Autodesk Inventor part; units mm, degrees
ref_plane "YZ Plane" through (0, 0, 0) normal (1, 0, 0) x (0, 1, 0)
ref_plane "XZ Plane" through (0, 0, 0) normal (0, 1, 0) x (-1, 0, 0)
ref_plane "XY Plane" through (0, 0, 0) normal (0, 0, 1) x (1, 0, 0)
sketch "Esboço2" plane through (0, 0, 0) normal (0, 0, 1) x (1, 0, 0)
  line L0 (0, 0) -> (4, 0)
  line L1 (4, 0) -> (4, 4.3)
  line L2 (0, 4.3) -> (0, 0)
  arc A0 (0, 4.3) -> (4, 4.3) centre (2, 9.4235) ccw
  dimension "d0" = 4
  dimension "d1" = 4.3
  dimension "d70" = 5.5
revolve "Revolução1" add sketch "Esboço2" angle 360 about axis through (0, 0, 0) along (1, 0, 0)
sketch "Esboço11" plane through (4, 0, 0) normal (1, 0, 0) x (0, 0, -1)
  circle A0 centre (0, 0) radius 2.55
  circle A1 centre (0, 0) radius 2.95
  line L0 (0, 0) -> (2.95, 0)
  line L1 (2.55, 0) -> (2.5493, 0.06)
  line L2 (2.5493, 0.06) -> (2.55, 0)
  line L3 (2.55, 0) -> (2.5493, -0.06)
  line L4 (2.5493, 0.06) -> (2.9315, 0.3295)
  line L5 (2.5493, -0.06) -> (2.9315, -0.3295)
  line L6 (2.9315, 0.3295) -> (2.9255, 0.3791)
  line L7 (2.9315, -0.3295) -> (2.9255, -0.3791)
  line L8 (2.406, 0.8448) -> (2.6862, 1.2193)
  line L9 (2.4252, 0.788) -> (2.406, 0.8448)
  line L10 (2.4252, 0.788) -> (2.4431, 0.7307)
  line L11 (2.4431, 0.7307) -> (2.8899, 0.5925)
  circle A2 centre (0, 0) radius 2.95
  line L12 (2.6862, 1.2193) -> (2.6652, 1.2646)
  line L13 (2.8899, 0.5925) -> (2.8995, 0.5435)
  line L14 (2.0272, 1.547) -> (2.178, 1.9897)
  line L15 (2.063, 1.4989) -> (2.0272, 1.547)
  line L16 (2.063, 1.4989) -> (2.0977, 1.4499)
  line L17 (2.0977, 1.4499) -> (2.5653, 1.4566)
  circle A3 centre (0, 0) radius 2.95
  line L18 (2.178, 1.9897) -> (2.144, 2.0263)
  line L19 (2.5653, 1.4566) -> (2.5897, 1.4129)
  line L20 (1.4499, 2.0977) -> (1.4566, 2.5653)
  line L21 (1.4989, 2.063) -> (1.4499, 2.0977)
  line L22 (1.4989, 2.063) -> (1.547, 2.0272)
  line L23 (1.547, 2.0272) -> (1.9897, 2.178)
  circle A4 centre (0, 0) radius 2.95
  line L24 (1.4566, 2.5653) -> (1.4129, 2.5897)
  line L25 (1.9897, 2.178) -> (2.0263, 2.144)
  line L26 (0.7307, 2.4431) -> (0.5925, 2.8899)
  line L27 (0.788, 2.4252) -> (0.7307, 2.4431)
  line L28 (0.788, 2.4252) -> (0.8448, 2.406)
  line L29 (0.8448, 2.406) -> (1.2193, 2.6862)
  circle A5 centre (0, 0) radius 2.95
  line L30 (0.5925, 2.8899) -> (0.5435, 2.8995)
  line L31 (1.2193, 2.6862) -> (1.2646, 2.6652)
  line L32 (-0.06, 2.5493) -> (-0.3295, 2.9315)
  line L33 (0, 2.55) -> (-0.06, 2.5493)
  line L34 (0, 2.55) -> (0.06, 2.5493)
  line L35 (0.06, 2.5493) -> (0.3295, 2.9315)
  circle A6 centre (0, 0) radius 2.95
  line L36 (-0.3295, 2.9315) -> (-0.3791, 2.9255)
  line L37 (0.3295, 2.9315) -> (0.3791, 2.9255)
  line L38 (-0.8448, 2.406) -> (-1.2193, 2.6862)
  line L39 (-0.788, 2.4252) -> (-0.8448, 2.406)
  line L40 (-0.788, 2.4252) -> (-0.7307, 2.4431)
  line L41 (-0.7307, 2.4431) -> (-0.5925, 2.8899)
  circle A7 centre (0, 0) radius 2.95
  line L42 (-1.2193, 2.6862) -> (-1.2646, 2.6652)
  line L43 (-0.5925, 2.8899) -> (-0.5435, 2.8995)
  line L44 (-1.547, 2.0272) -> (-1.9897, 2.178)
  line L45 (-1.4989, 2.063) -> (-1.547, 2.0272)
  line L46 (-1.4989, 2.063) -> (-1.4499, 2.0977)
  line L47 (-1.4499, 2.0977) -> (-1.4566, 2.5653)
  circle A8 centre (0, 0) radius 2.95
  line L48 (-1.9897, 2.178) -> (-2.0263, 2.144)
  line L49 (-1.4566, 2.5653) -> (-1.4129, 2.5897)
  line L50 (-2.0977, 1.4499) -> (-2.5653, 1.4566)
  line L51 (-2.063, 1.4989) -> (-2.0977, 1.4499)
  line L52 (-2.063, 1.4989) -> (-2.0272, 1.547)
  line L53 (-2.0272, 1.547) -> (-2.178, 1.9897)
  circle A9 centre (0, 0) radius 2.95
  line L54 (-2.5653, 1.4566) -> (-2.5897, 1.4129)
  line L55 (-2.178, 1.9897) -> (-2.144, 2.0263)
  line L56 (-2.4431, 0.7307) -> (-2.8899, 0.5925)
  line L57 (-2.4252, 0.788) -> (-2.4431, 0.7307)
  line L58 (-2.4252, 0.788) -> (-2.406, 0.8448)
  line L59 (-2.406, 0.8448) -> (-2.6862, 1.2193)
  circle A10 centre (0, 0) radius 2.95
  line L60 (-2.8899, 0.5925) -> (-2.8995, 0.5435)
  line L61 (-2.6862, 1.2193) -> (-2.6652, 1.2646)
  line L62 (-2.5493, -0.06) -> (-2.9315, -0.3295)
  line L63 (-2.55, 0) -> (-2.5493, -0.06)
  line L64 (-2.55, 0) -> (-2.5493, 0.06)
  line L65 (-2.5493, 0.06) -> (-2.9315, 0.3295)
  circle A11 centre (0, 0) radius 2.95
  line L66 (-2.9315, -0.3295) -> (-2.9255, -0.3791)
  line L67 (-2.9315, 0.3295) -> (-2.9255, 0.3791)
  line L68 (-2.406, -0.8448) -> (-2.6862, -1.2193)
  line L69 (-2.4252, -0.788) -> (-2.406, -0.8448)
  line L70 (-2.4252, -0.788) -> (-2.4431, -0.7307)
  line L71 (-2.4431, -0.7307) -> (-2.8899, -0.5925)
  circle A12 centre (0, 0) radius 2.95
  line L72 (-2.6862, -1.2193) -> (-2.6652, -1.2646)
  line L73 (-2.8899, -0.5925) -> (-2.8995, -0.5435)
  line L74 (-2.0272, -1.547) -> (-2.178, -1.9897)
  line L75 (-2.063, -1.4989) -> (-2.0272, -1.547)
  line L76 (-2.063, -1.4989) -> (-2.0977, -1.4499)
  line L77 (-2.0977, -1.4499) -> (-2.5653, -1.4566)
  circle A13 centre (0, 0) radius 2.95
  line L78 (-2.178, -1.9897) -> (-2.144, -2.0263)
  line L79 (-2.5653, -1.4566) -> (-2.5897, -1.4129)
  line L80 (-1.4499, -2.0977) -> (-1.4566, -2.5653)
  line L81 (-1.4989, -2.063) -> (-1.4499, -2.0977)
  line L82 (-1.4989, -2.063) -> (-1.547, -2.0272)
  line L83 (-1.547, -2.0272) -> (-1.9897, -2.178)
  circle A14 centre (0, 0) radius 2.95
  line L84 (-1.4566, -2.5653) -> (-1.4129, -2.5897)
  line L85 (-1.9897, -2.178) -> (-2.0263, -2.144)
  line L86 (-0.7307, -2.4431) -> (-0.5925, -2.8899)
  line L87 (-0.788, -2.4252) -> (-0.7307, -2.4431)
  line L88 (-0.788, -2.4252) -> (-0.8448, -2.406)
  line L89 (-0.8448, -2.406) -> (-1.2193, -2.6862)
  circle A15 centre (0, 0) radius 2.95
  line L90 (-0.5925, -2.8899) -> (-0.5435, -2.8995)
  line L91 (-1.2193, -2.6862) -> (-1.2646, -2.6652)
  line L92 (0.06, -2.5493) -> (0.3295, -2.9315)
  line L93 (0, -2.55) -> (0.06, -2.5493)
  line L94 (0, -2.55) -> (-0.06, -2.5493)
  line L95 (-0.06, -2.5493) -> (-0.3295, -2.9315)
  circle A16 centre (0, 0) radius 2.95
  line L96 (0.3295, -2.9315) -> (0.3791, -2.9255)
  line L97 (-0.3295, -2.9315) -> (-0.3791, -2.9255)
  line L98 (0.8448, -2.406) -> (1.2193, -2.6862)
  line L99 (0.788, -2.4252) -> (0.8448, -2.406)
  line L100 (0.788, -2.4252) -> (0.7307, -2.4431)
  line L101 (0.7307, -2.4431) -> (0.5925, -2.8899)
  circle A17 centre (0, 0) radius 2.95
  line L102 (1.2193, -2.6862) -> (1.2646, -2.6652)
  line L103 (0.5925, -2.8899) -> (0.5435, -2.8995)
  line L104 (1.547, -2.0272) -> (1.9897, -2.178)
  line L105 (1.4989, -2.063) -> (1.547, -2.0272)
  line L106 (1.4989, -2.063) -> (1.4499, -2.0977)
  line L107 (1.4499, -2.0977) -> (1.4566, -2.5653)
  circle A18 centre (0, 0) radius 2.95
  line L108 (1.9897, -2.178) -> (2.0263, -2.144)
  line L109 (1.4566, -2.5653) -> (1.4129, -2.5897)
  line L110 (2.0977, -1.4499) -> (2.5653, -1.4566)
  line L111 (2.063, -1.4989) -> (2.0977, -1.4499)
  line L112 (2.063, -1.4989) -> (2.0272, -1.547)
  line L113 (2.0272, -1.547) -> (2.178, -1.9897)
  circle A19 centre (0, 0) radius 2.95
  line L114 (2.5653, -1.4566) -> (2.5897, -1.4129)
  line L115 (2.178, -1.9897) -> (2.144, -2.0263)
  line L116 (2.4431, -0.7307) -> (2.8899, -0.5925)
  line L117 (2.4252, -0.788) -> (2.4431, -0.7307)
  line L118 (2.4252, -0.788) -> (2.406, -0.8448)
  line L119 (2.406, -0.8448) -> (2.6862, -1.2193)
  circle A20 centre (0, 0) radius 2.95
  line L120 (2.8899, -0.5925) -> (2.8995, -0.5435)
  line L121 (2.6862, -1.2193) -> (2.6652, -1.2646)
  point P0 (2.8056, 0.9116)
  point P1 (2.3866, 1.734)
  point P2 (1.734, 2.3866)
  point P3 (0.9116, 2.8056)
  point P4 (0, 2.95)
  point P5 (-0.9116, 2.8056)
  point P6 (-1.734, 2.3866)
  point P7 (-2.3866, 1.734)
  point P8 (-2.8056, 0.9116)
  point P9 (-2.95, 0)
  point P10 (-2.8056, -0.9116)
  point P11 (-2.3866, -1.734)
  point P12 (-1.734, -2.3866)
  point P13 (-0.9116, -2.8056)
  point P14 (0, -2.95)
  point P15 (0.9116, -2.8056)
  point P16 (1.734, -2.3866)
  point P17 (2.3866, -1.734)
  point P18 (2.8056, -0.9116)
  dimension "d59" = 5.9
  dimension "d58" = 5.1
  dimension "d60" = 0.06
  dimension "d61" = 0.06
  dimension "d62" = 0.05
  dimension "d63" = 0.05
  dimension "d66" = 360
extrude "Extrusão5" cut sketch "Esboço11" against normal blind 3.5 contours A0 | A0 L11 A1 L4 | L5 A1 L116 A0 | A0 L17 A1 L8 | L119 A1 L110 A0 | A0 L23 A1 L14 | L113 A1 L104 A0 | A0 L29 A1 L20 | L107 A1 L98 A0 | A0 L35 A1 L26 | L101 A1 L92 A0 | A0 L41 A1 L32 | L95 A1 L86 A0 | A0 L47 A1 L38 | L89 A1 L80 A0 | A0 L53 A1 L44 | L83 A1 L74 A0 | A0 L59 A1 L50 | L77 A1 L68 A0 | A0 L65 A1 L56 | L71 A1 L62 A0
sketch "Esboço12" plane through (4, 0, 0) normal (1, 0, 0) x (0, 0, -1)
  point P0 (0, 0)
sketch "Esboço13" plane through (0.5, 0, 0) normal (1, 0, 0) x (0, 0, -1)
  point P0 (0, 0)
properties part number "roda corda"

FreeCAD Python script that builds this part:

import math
import FreeCAD as App
import Part
import Sketcher
Q = App.Units.Quantity

doc = App.newDocument("Part")
params = doc.addObject("Spreadsheet::Sheet", "Params")
for row, (alias, value) in enumerate([
    ("sketch1_radius", "5.5 mm"),
    ("sketch1_width", "4 mm"),
    ("sketch1_height", "4.3 mm"),
    ("revolution_angle", "360 deg"),
    ("sketch2_radius", "2.55 mm"),
    ("sketch2_radius2", "2.95 mm"),
    ("pocket1_length", "3.5 mm"),
], start=1):
    params.set(f"A{row}", alias)
    params.set(f"B{row}", "=" + value)
    params.setAlias(f"B{row}", alias)

body = doc.addObject("PartDesign::Body", "Body")

# Sketch on XY plane
sketch1 = doc.addObject("Sketcher::SketchObject", "Sketch")
body.addObject(sketch1)
sketch1.AttachmentSupport = (doc.XY_Plane, [""])
sketch1.MapMode = "FlatFace"
sketch1.addGeometry([
    Part.LineSegment(App.Vector(0, 4.3, 0), App.Vector(0, 0, 0)),
    Part.LineSegment(App.Vector(0, 0, 0), App.Vector(4, 0, 0)),
    Part.LineSegment(App.Vector(4, 0, 0), App.Vector(4, 4.3, 0)),
    Part.ArcOfCircle(Part.Circle(App.Vector(2, 9.4235, 0), App.Vector(0, 0, 1), 5.500023), math.radians(-111.323593), math.radians(-68.676407)),
], False)
sketch1.addConstraint([
    Sketcher.Constraint("Coincident", 0, 2, 1, 1),
    Sketcher.Constraint("Coincident", 1, 2, 2, 1),
    Sketcher.Constraint("Coincident", 2, 2, 3, 2),
    Sketcher.Constraint("Coincident", 3, 1, 0, 1),
    Sketcher.Constraint("Vertical", 0),
    Sketcher.Constraint("Horizontal", 1),
    Sketcher.Constraint("Vertical", 2),
    Sketcher.Constraint("Coincident", 0, 2, -1, 1),
    Sketcher.Constraint("Horizontal", 2, 2, 3, 1),
    Sketcher.Constraint("Radius", 3, 5.5),
    Sketcher.Constraint("DistanceX", 1, 1, 1, 2, 4.0),
    Sketcher.Constraint("DistanceY", 0, 2, 0, 1, 4.3),
])
sketch1.setExpression("Constraints[9]", "Params.sketch1_radius")
sketch1.setExpression("Constraints[10]", "Params.sketch1_width")
sketch1.setExpression("Constraints[11]", "Params.sketch1_height")
revolution = doc.addObject("PartDesign::Revolution", "Revolution")
body.addObject(revolution)
revolution.Profile = sketch1
revolution.ReferenceAxis = (sketch1, ["H_Axis"])
revolution.setExpression("Angle", "Params.revolution_angle")

# Sketch on YZ plane
sketch2 = doc.addObject("Sketcher::SketchObject", "Sketch001")
body.addObject(sketch2)
sketch2.AttachmentSupport = (doc.YZ_Plane, [""])
sketch2.MapMode = "FlatFace"
sketch2.AttachmentOffset = App.Placement(App.Vector(0, 0, 4), App.Rotation())
sketch2.addGeometry([
    Part.ArcOfCircle(Part.Circle(App.Vector(0, 0, 0), App.Vector(0, 0, 1), 2.55), math.radians(-91.348257), math.radians(-88.651743)),  # 0
    Part.LineSegment(App.Vector(0.06, -2.5493, 0), App.Vector(0.3295, -2.9315, 0)),  # 1
    Part.ArcOfCircle(Part.Circle(App.Vector(0, 0, 0), App.Vector(0, 0, 1), 2.95), math.radians(-83.586883), math.radians(-78.413532)),  # 2
    Part.LineSegment(App.Vector(0.5925, -2.8899, 0), App.Vector(0.7307, -2.4431, 0)),  # 3
    Part.ArcOfCircle(Part.Circle(App.Vector(0, 0, 0), App.Vector(0, 0, 1), 2.55), math.radians(-73.348748), math.radians(-70.652694)),  # 4
    Part.LineSegment(App.Vector(0.8448, -2.406, 0), App.Vector(1.2193, -2.6862, 0)),  # 5
    Part.ArcOfCircle(Part.Circle(App.Vector(0, 0, 0), App.Vector(0, 0, 1), 2.95), math.radians(-65.586104), math.radians(-60.411707)),  # 6
    Part.LineSegment(App.Vector(1.4566, -2.5653, 0), App.Vector(1.4499, -2.0977, 0)),  # 7
    Part.ArcOfCircle(Part.Circle(App.Vector(0, 0, 0), App.Vector(0, 0, 1), 2.55), math.radians(-55.348331), math.radians(-52.651967)),  # 8
    Part.LineSegment(App.Vector(1.547, -2.0272, 0), App.Vector(1.9897, -2.178, 0)),  # 9
    Part.ArcOfCircle(Part.Circle(App.Vector(0, 0, 0), App.Vector(0, 0, 1), 2.95), math.radians(-47.58691), math.radians(-42.41309)),  # 10
    Part.LineSegment(App.Vector(2.178, -1.9897, 0), App.Vector(2.0272, -1.547, 0)),  # 11
    Part.ArcOfCircle(Part.Circle(App.Vector(0, 0, 0), App.Vector(0, 0, 1), 2.55), math.radians(-37.348033), math.radians(-34.651669)),  # 12
    Part.LineSegment(App.Vector(2.0977, -1.4499, 0), App.Vector(2.5653, -1.4566, 0)),  # 13
    Part.ArcOfCircle(Part.Circle(App.Vector(0, 0, 0), App.Vector(0, 0, 1), 2.95), math.radians(-29.588293), math.radians(-24.413896)),  # 14
    Part.LineSegment(App.Vector(2.6862, -1.2193, 0), App.Vector(2.406, -0.8448, 0)),  # 15
    Part.ArcOfCircle(Part.Circle(App.Vector(0, 0, 0), App.Vector(0, 0, 1), 2.55), math.radians(-19.347306), math.radians(-16.651252)),  # 16
    Part.LineSegment(App.Vector(2.4431, -0.7307, 0), App.Vector(2.8899, -0.5925, 0)),  # 17
    Part.ArcOfCircle(Part.Circle(App.Vector(0, 0, 0), App.Vector(0, 0, 1), 2.95), math.radians(-11.586468), math.radians(-6.413117)),  # 18
    Part.LineSegment(App.Vector(2.9315, -0.3295, 0), App.Vector(2.5493, -0.06, 0)),  # 19
    Part.ArcOfCircle(Part.Circle(App.Vector(0, 0, 0), App.Vector(0, 0, 1), 2.55), math.radians(-1.348257), math.radians(1.348257)),  # 20
    Part.LineSegment(App.Vector(2.5493, 0.06, 0), App.Vector(2.9315, 0.3295, 0)),  # 21
    Part.ArcOfCircle(Part.Circle(App.Vector(0, 0, 0), App.Vector(0, 0, 1), 2.95), math.radians(6.413117), math.radians(11.586468)),  # 22
    Part.LineSegment(App.Vector(2.8899, 0.5925, 0), App.Vector(2.4431, 0.7307, 0)),  # 23
    Part.ArcOfCircle(Part.Circle(App.Vector(0, 0, 0), App.Vector(0, 0, 1), 2.55), math.radians(16.651252), math.radians(19.347306)),  # 24
    Part.LineSegment(App.Vector(2.406, 0.8448, 0), App.Vector(2.6862, 1.2193, 0)),  # 25
    Part.ArcOfCircle(Part.Circle(App.Vector(0, 0, 0), App.Vector(0, 0, 1), 2.95), math.radians(24.413896), math.radians(29.588293)),  # 26
    Part.LineSegment(App.Vector(2.5653, 1.4566, 0), App.Vector(2.0977, 1.4499, 0)),  # 27
    Part.ArcOfCircle(Part.Circle(App.Vector(0, 0, 0), App.Vector(0, 0, 1), 2.55), math.radians(34.651669), math.radians(37.348033)),  # 28
    Part.LineSegment(App.Vector(2.0272, 1.547, 0), App.Vector(2.178, 1.9897, 0)),  # 29
    Part.ArcOfCircle(Part.Circle(App.Vector(0, 0, 0), App.Vector(0, 0, 1), 2.95), math.radians(42.41309), math.radians(47.58691)),  # 30
    Part.LineSegment(App.Vector(1.9897, 2.178, 0), App.Vector(1.547, 2.0272, 0)),  # 31
    Part.ArcOfCircle(Part.Circle(App.Vector(0, 0, 0), App.Vector(0, 0, 1), 2.55), math.radians(52.651967), math.radians(55.348331)),  # 32
    Part.LineSegment(App.Vector(1.4499, 2.0977, 0), App.Vector(1.4566, 2.5653, 0)),  # 33
    Part.ArcOfCircle(Part.Circle(App.Vector(0, 0, 0), App.Vector(0, 0, 1), 2.95), math.radians(60.411707), math.radians(65.586104)),  # 34
    Part.LineSegment(App.Vector(1.2193, 2.6862, 0), App.Vector(0.8448, 2.406, 0)),  # 35
    Part.ArcOfCircle(Part.Circle(App.Vector(0, 0, 0), App.Vector(0, 0, 1), 2.55), math.radians(70.652694), math.radians(73.348748)),  # 36
    Part.LineSegment(App.Vector(0.7307, 2.4431, 0), App.Vector(0.5925, 2.8899, 0)),  # 37
    Part.ArcOfCircle(Part.Circle(App.Vector(0, 0, 0), App.Vector(0, 0, 1), 2.95), math.radians(78.413532), math.radians(83.586883)),  # 38
    Part.LineSegment(App.Vector(0.3295, 2.9315, 0), App.Vector(0.06, 2.5493, 0)),  # 39
    Part.ArcOfCircle(Part.Circle(App.Vector(0, 0, 0), App.Vector(0, 0, 1), 2.55), math.radians(88.651743), math.radians(91.348257)),  # 40
    Part.LineSegment(App.Vector(-0.06, 2.5493, 0), App.Vector(-0.3295, 2.9315, 0)),  # 41
    Part.ArcOfCircle(Part.Circle(App.Vector(0, 0, 0), App.Vector(0, 0, 1), 2.95), math.radians(96.413117), math.radians(101.586468)),  # 42
    Part.LineSegment(App.Vector(-0.5925, 2.8899, 0), App.Vector(-0.7307, 2.4431, 0)),  # 43
    Part.ArcOfCircle(Part.Circle(App.Vector(0, 0, 0), App.Vector(0, 0, 1), 2.55), math.radians(106.651252), math.radians(109.347306)),  # 44
    Part.LineSegment(App.Vector(-0.8448, 2.406, 0), App.Vector(-1.2193, 2.6862, 0)),  # 45
    Part.ArcOfCircle(Part.Circle(App.Vector(0, 0, 0), App.Vector(0, 0, 1), 2.95), math.radians(114.413896), math.radians(119.588293)),  # 46
    Part.LineSegment(App.Vector(-1.4566, 2.5653, 0), App.Vector(-1.4499, 2.0977, 0)),  # 47
    Part.ArcOfCircle(Part.Circle(App.Vector(0, 0, 0), App.Vector(0, 0, 1), 2.55), math.radians(124.651669), math.radians(127.348033)),  # 48
    Part.LineSegment(App.Vector(-1.547, 2.0272, 0), App.Vector(-1.9897, 2.178, 0)),  # 49
    Part.ArcOfCircle(Part.Circle(App.Vector(0, 0, 0), App.Vector(0, 0, 1), 2.95), math.radians(132.41309), math.radians(137.58691)),  # 50
    Part.LineSegment(App.Vector(-2.178, 1.9897, 0), App.Vector(-2.0272, 1.547, 0)),  # 51
    Part.ArcOfCircle(Part.Circle(App.Vector(0, 0, 0), App.Vector(0, 0, 1), 2.55), math.radians(142.651967), math.radians(145.348331)),  # 52
    Part.LineSegment(App.Vector(-2.0977, 1.4499, 0), App.Vector(-2.5653, 1.4566, 0)),  # 53
    Part.ArcOfCircle(Part.Circle(App.Vector(0, 0, 0), App.Vector(0, 0, 1), 2.95), math.radians(150.411707), math.radians(155.586104)),  # 54
    Part.LineSegment(App.Vector(-2.6862, 1.2193, 0), App.Vector(-2.406, 0.8448, 0)),  # 55
    Part.ArcOfCircle(Part.Circle(App.Vector(0, 0, 0), App.Vector(0, 0, 1), 2.55), math.radians(160.652694), math.radians(163.348748)),  # 56
    Part.LineSegment(App.Vector(-2.4431, 0.7307, 0), App.Vector(-2.8899, 0.5925, 0)),  # 57
    Part.ArcOfCircle(Part.Circle(App.Vector(0, 0, 0), App.Vector(0, 0, 1), 2.95), math.radians(168.413532), math.radians(173.586883)),  # 58
    Part.LineSegment(App.Vector(-2.9315, 0.3295, 0), App.Vector(-2.5493, 0.06, 0)),  # 59
    Part.ArcOfCircle(Part.Circle(App.Vector(0, 0, 0), App.Vector(0, 0, 1), 2.55), math.radians(178.651743), math.radians(181.348257)),  # 60
    Part.LineSegment(App.Vector(-2.5493, -0.06, 0), App.Vector(-2.9315, -0.3295, 0)),  # 61
    Part.ArcOfCircle(Part.Circle(App.Vector(0, 0, 0), App.Vector(0, 0, 1), 2.95), math.radians(-173.586883), math.radians(-168.413532)),  # 62
    Part.LineSegment(App.Vector(-2.8899, -0.5925, 0), App.Vector(-2.4431, -0.7307, 0)),  # 63
    Part.ArcOfCircle(Part.Circle(App.Vector(0, 0, 0), App.Vector(0, 0, 1), 2.55), math.radians(-163.348748), math.radians(-160.652694)),  # 64
    Part.LineSegment(App.Vector(-2.406, -0.8448, 0), App.Vector(-2.6862, -1.2193, 0)),  # 65
    Part.ArcOfCircle(Part.Circle(App.Vector(0, 0, 0), App.Vector(0, 0, 1), 2.95), math.radians(-155.586104), math.radians(-150.411707)),  # 66
    Part.LineSegment(App.Vector(-2.5653, -1.4566, 0), App.Vector(-2.0977, -1.4499, 0)),  # 67
    Part.ArcOfCircle(Part.Circle(App.Vector(0, 0, 0), App.Vector(0, 0, 1), 2.55), math.radians(-145.348331), math.radians(-142.651967)),  # 68
    Part.LineSegment(App.Vector(-2.0272, -1.547, 0), App.Vector(-2.178, -1.9897, 0)),  # 69
    Part.ArcOfCircle(Part.Circle(App.Vector(0, 0, 0), App.Vector(0, 0, 1), 2.95), math.radians(-137.58691), math.radians(-132.41309)),  # 70
    Part.LineSegment(App.Vector(-1.9897, -2.178, 0), App.Vector(-1.547, -2.0272, 0)),  # 71
    Part.ArcOfCircle(Part.Circle(App.Vector(0, 0, 0), App.Vector(0, 0, 1), 2.55), math.radians(-127.348033), math.radians(-124.651669)),  # 72
    Part.LineSegment(App.Vector(-1.4499, -2.0977, 0), App.Vector(-1.4566, -2.5653, 0)),  # 73
    Part.ArcOfCircle(Part.Circle(App.Vector(0, 0, 0), App.Vector(0, 0, 1), 2.95), math.radians(-119.588293), math.radians(-114.413896)),  # 74
    Part.LineSegment(App.Vector(-1.2193, -2.6862, 0), App.Vector(-0.8448, -2.406, 0)),  # 75
    Part.ArcOfCircle(Part.Circle(App.Vector(0, 0, 0), App.Vector(0, 0, 1), 2.55), math.radians(-109.347306), math.radians(-106.651252)),  # 76
    Part.LineSegment(App.Vector(-0.7307, -2.4431, 0), App.Vector(-0.5925, -2.8899, 0)),  # 77
    Part.ArcOfCircle(Part.Circle(App.Vector(0, 0, 0), App.Vector(0, 0, 1), 2.95), math.radians(-101.586468), math.radians(-96.413117)),  # 78
    Part.LineSegment(App.Vector(-0.3295, -2.9315, 0), App.Vector(-0.06, -2.5493, 0)),  # 79
], False)
sketch2.addConstraint([
    Sketcher.Constraint("Coincident", 0, 2, 1, 1),
    Sketcher.Constraint("Coincident", 1, 2, 2, 1),
    Sketcher.Constraint("Coincident", 2, 2, 3, 1),
    Sketcher.Constraint("Coincident", 3, 2, 4, 1),
    Sketcher.Constraint("Coincident", 4, 2, 5, 1),
    Sketcher.Constraint("Coincident", 5, 2, 6, 1),
    Sketcher.Constraint("Coincident", 6, 2, 7, 1),
    Sketcher.Constraint("Coincident", 7, 2, 8, 1),
    Sketcher.Constraint("Coincident", 8, 2, 9, 1),
    Sketcher.Constraint("Coincident", 9, 2, 10, 1),
    Sketcher.Constraint("Coincident", 10, 2, 11, 1),
    Sketcher.Constraint("Coincident", 11, 2, 12, 1),
    Sketcher.Constraint("Coincident", 12, 2, 13, 1),
    Sketcher.Constraint("Coincident", 13, 2, 14, 1),
    Sketcher.Constraint("Coincident", 14, 2, 15, 1),
    Sketcher.Constraint("Coincident", 15, 2, 16, 1),
    Sketcher.Constraint("Coincident", 16, 2, 17, 1),
    Sketcher.Constraint("Coincident", 17, 2, 18, 1),
    Sketcher.Constraint("Coincident", 18, 2, 19, 1),
    Sketcher.Constraint("Coincident", 19, 2, 20, 1),
    Sketcher.Constraint("Coincident", 20, 2, 21, 1),
    Sketcher.Constraint("Coincident", 21, 2, 22, 1),
    Sketcher.Constraint("Coincident", 22, 2, 23, 1),
    Sketcher.Constraint("Coincident", 23, 2, 24, 1),
    Sketcher.Constraint("Coincident", 24, 2, 25, 1),
    Sketcher.Constraint("Coincident", 25, 2, 26, 1),
    Sketcher.Constraint("Coincident", 26, 2, 27, 1),
    Sketcher.Constraint("Coincident", 27, 2, 28, 1),
    Sketcher.Constraint("Coincident", 28, 2, 29, 1),
    Sketcher.Constraint("Coincident", 29, 2, 30, 1),
    Sketcher.Constraint("Coincident", 30, 2, 31, 1),
    Sketcher.Constraint("Coincident", 31, 2, 32, 1),
    Sketcher.Constraint("Coincident", 32, 2, 33, 1),
    Sketcher.Constraint("Coincident", 33, 2, 34, 1),
    Sketcher.Constraint("Coincident", 34, 2, 35, 1),
    Sketcher.Constraint("Coincident", 35, 2, 36, 1),
    Sketcher.Constraint("Coincident", 36, 2, 37, 1),
    Sketcher.Constraint("Coincident", 37, 2, 38, 1),
    Sketcher.Constraint("Coincident", 38, 2, 39, 1),
    Sketcher.Constraint("Coincident", 39, 2, 40, 1),
    Sketcher.Constraint("Coincident", 40, 2, 41, 1),
    Sketcher.Constraint("Coincident", 41, 2, 42, 1),
    Sketcher.Constraint("Coincident", 42, 2, 43, 1),
    Sketcher.Constraint("Coincident", 43, 2, 44, 1),
    Sketcher.Constraint("Coincident", 44, 2, 45, 1),
    Sketcher.Constraint("Coincident", 45, 2, 46, 1),
    Sketcher.Constraint("Coincident", 46, 2, 47, 1),
    Sketcher.Constraint("Coincident", 47, 2, 48, 1),
    Sketcher.Constraint("Coincident", 48, 2, 49, 1),
    Sketcher.Constraint("Coincident", 49, 2, 50, 1),
    Sketcher.Constraint("Coincident", 50, 2, 51, 1),
    Sketcher.Constraint("Coincident", 51, 2, 52, 1),
    Sketcher.Constraint("Coincident", 52, 2, 53, 1),
    Sketcher.Constraint("Coincident", 53, 2, 54, 1),
    Sketcher.Constraint("Coincident", 54, 2, 55, 1),
    Sketcher.Constraint("Coincident", 55, 2, 56, 1),
    Sketcher.Constraint("Coincident", 56, 2, 57, 1),
    Sketcher.Constraint("Coincident", 57, 2, 58, 1),
    Sketcher.Constraint("Coincident", 58, 2, 59, 1),
    Sketcher.Constraint("Coincident", 59, 2, 60, 1),
    Sketcher.Constraint("Coincident", 60, 2, 61, 1),
    Sketcher.Constraint("Coincident", 61, 2, 62, 1),
    Sketcher.Constraint("Coincident", 62, 2, 63, 1),
    Sketcher.Constraint("Coincident", 63, 2, 64, 1),
    Sketcher.Constraint("Coincident", 64, 2, 65, 1),
    Sketcher.Constraint("Coincident", 65, 2, 66, 1),
    Sketcher.Constraint("Coincident", 66, 2, 67, 1),
    Sketcher.Constraint("Coincident", 67, 2, 68, 1),
    Sketcher.Constraint("Coincident", 68, 2, 69, 1),
    Sketcher.Constraint("Coincident", 69, 2, 70, 1),
    Sketcher.Constraint("Coincident", 70, 2, 71, 1),
    Sketcher.Constraint("Coincident", 71, 2, 72, 1),
    Sketcher.Constraint("Coincident", 72, 2, 73, 1),
    Sketcher.Constraint("Coincident", 73, 2, 74, 1),
    Sketcher.Constraint("Coincident", 74, 2, 75, 1),
    Sketcher.Constraint("Coincident", 75, 2, 76, 1),
    Sketcher.Constraint("Coincident", 76, 2, 77, 1),
    Sketcher.Constraint("Coincident", 77, 2, 78, 1),
    Sketcher.Constraint("Coincident", 78, 2, 79, 1),
    Sketcher.Constraint("Coincident", 79, 2, 0, 1),
    Sketcher.Constraint("Coincident", 0, 3, -1, 1),
    Sketcher.Constraint("Coincident", 2, 3, -1, 1),
    Sketcher.Constraint("Coincident", 4, 3, -1, 1),
    Sketcher.Constraint("Coincident", 6, 3, -1, 1),
    Sketcher.Constraint("Coincident", 8, 3, -1, 1),
    Sketcher.Constraint("Coincident", 10, 3, -1, 1),
    Sketcher.Constraint("Coincident", 12, 3, -1, 1),
    Sketcher.Constraint("Coincident", 14, 3, -1, 1),
    Sketcher.Constraint("Coincident", 16, 3, -1, 1),
    Sketcher.Constraint("Coincident", 18, 3, -1, 1),
    Sketcher.Constraint("Coincident", 20, 3, -1, 1),
    Sketcher.Constraint("Coincident", 22, 3, -1, 1),
    Sketcher.Constraint("Coincident", 24, 3, -1, 1),
    Sketcher.Constraint("Coincident", 26, 3, -1, 1),
    Sketcher.Constraint("Coincident", 28, 3, -1, 1),
    Sketcher.Constraint("Coincident", 30, 3, -1, 1),
    Sketcher.Constraint("Coincident", 32, 3, -1, 1),
    Sketcher.Constraint("Coincident", 34, 3, -1, 1),
    Sketcher.Constraint("Coincident", 36, 3, -1, 1),
    Sketcher.Constraint("Coincident", 38, 3, -1, 1),
    Sketcher.Constraint("Coincident", 40, 3, -1, 1),
    Sketcher.Constraint("Coincident", 42, 3, -1, 1),
    Sketcher.Constraint("Coincident", 44, 3, -1, 1),
    Sketcher.Constraint("Coincident", 46, 3, -1, 1),
    Sketcher.Constraint("Coincident", 48, 3, -1, 1),
    Sketcher.Constraint("Coincident", 50, 3, -1, 1),
    Sketcher.Constraint("Coincident", 52, 3, -1, 1),
    Sketcher.Constraint("Coincident", 54, 3, -1, 1),
    Sketcher.Constraint("Coincident", 56, 3, -1, 1),
    Sketcher.Constraint("Coincident", 58, 3, -1, 1),
    Sketcher.Constraint("Coincident", 60, 3, -1, 1),
    Sketcher.Constraint("Coincident", 62, 3, -1, 1),
    Sketcher.Constraint("Coincident", 64, 3, -1, 1),
    Sketcher.Constraint("Coincident", 66, 3, -1, 1),
    Sketcher.Constraint("Coincident", 68, 3, -1, 1),
    Sketcher.Constraint("Coincident", 70, 3, -1, 1),
    Sketcher.Constraint("Coincident", 72, 3, -1, 1),
    Sketcher.Constraint("Coincident", 74, 3, -1, 1),
    Sketcher.Constraint("Coincident", 76, 3, -1, 1),
    Sketcher.Constraint("Coincident", 78, 3, -1, 1),
    Sketcher.Constraint("Equal", 0, 4),
    Sketcher.Constraint("Equal", 2, 6),
    Sketcher.Constraint("Equal", 4, 8),
    Sketcher.Constraint("Equal", 6, 10),
    Sketcher.Constraint("Equal", 8, 12),
    Sketcher.Constraint("Equal", 10, 14),
    Sketcher.Constraint("Equal", 12, 16),
    Sketcher.Constraint("Equal", 14, 18),
    Sketcher.Constraint("Equal", 16, 20),
    Sketcher.Constraint("Equal", 18, 22),
    Sketcher.Constraint("Equal", 20, 24),
    Sketcher.Constraint("Equal", 22, 26),
    Sketcher.Constraint("Equal", 24, 28),
    Sketcher.Constraint("Equal", 26, 30),
    Sketcher.Constraint("Equal", 28, 32),
    Sketcher.Constraint("Equal", 30, 34),
    Sketcher.Constraint("Equal", 32, 36),
    Sketcher.Constraint("Equal", 34, 38),
    Sketcher.Constraint("Equal", 36, 40),
    Sketcher.Constraint("Equal", 38, 42),
    Sketcher.Constraint("Equal", 40, 44),
    Sketcher.Constraint("Equal", 42, 46),
    Sketcher.Constraint("Equal", 44, 48),
    Sketcher.Constraint("Equal", 46, 50),
    Sketcher.Constraint("Equal", 48, 52),
    Sketcher.Constraint("Equal", 50, 54),
    Sketcher.Constraint("Equal", 52, 56),
    Sketcher.Constraint("Equal", 54, 58),
    Sketcher.Constraint("Equal", 56, 60),
    Sketcher.Constraint("Equal", 58, 62),
    Sketcher.Constraint("Equal", 60, 64),
    Sketcher.Constraint("Equal", 62, 66),
    Sketcher.Constraint("Equal", 64, 68),
    Sketcher.Constraint("Equal", 66, 70),
    Sketcher.Constraint("Equal", 68, 72),
    Sketcher.Constraint("Equal", 70, 74),
    Sketcher.Constraint("Equal", 72, 76),
    Sketcher.Constraint("Equal", 74, 78),
    Sketcher.Constraint("Perpendicular", 1, 21),
    Sketcher.Constraint("Perpendicular", 3, 23),
    Sketcher.Constraint("Perpendicular", 5, 25),
    Sketcher.Constraint("Perpendicular", 7, 27),
    Sketcher.Constraint("Perpendicular", 9, 29),
    Sketcher.Constraint("Perpendicular", 11, 31),
    Sketcher.Constraint("Perpendicular", 13, 33),
    Sketcher.Constraint("Perpendicular", 15, 35),
    Sketcher.Constraint("Perpendicular", 17, 37),
    Sketcher.Constraint("Perpendicular", 19, 39),
    Sketcher.Constraint("Perpendicular", 21, 41),
    Sketcher.Constraint("Perpendicular", 23, 43),
    Sketcher.Constraint("Perpendicular", 25, 45),
    Sketcher.Constraint("Perpendicular", 27, 47),
    Sketcher.Constraint("Perpendicular", 29, 49),
    Sketcher.Constraint("Perpendicular", 31, 51),
    Sketcher.Constraint("Perpendicular", 33, 53),
    Sketcher.Constraint("Perpendicular", 35, 55),
    Sketcher.Constraint("Perpendicular", 37, 57),
    Sketcher.Constraint("Perpendicular", 39, 59),
    Sketcher.Constraint("Perpendicular", 41, 61),
    Sketcher.Constraint("Perpendicular", 43, 63),
    Sketcher.Constraint("Perpendicular", 45, 65),
    Sketcher.Constraint("Perpendicular", 47, 67),
    Sketcher.Constraint("Perpendicular", 49, 69),
    Sketcher.Constraint("Perpendicular", 51, 71),
    Sketcher.Constraint("Perpendicular", 53, 73),
    Sketcher.Constraint("Perpendicular", 55, 75),
    Sketcher.Constraint("Perpendicular", 57, 77),
    Sketcher.Constraint("Perpendicular", 59, 79),
    Sketcher.Constraint("Horizontal", 39, 2, 40, 2),
    Sketcher.Constraint("Horizontal", 38, 2, 41, 2),
    Sketcher.Constraint("Horizontal", 37, 2, 42, 2),
    Sketcher.Constraint("Horizontal", 36, 2, 43, 2),
    Sketcher.Constraint("Horizontal", 35, 2, 44, 2),
    Sketcher.Constraint("Horizontal", 34, 2, 45, 2),
    Sketcher.Constraint("Horizontal", 33, 2, 46, 2),
    Sketcher.Constraint("Horizontal", 32, 2, 47, 2),
    Sketcher.Constraint("Horizontal", 31, 2, 48, 2),
    Sketcher.Constraint("Horizontal", 30, 2, 49, 2),
    Sketcher.Constraint("Horizontal", 29, 2, 50, 2),
    Sketcher.Constraint("Horizontal", 27, 2, 52, 2),
    Sketcher.Constraint("Horizontal", 25, 2, 54, 2),
    Sketcher.Constraint("Horizontal", 23, 2, 56, 2),
    Sketcher.Constraint("Horizontal", 21, 2, 58, 2),
    Sketcher.Constraint("Horizontal", 19, 2, 60, 2),
    Sketcher.Constraint("Horizontal", 17, 2, 62, 2),
    Sketcher.Constraint("Horizontal", 15, 2, 64, 2),
    Sketcher.Constraint("Horizontal", 13, 2, 66, 2),
    Sketcher.Constraint("Horizontal", 11, 2, 68, 2),
    Sketcher.Constraint("Horizontal", 9, 2, 70, 2),
    Sketcher.Constraint("Horizontal", 7, 2, 72, 2),
    Sketcher.Constraint("Horizontal", 5, 2, 74, 2),
    Sketcher.Constraint("Horizontal", 3, 2, 76, 2),
    Sketcher.Constraint("Horizontal", 1, 2, 78, 2),
    Sketcher.Constraint("Vertical", 19, 2, 20, 2),
    Sketcher.Constraint("Vertical", 17, 2, 22, 2),
    Sketcher.Constraint("Vertical", 15, 2, 24, 2),
    Sketcher.Constraint("Vertical", 13, 2, 26, 2),
    Sketcher.Constraint("Vertical", 11, 2, 28, 2),
    Sketcher.Constraint("Vertical", 9, 2, 30, 2),
    Sketcher.Constraint("Vertical", 7, 2, 32, 2),
    Sketcher.Constraint("Vertical", 5, 2, 34, 2),
    Sketcher.Constraint("Vertical", 3, 2, 36, 2),
    Sketcher.Constraint("Vertical", 1, 2, 38, 2),
    Sketcher.Constraint("Equal", 1, 3),
    Sketcher.Constraint("Equal", 3, 5),
    Sketcher.Constraint("Equal", 5, 7),
    Sketcher.Constraint("Equal", 7, 9),
    Sketcher.Constraint("Equal", 9, 11),
    Sketcher.Constraint("Equal", 11, 13),
    Sketcher.Constraint("Equal", 13, 15),
    Sketcher.Constraint("Equal", 15, 17),
    Sketcher.Constraint("Equal", 17, 19),
    Sketcher.Constraint("Radius", 0, 2.55),
    Sketcher.Constraint("Radius", 2, 2.95),
    Sketcher.Constraint("DistanceX", -1, 1, 0, 2, 0.06),
    Sketcher.Constraint("Angle", 7, Q("90.821 deg")),
    Sketcher.Constraint("Angle", 9, Q("-18.8107 deg")),
    Sketcher.Constraint("DistanceY", 2, 2, -1, 1, 2.89),
    Sketcher.Constraint("DistanceX", -1, 1, 7, 2, 1.45),
    Sketcher.Constraint("DistanceY", 4, 2, -1, 1, 2.406),
])
sketch2.setExpression("Constraints[232]", "Params.sketch2_radius")
sketch2.setExpression("Constraints[233]", "Params.sketch2_radius2")
pocket1 = doc.addObject("PartDesign::Pocket", "Pocket")
body.addObject(pocket1)
pocket1.Profile = sketch2
pocket1.setExpression("Length", "Params.pocket1_length")

doc.recompute()
